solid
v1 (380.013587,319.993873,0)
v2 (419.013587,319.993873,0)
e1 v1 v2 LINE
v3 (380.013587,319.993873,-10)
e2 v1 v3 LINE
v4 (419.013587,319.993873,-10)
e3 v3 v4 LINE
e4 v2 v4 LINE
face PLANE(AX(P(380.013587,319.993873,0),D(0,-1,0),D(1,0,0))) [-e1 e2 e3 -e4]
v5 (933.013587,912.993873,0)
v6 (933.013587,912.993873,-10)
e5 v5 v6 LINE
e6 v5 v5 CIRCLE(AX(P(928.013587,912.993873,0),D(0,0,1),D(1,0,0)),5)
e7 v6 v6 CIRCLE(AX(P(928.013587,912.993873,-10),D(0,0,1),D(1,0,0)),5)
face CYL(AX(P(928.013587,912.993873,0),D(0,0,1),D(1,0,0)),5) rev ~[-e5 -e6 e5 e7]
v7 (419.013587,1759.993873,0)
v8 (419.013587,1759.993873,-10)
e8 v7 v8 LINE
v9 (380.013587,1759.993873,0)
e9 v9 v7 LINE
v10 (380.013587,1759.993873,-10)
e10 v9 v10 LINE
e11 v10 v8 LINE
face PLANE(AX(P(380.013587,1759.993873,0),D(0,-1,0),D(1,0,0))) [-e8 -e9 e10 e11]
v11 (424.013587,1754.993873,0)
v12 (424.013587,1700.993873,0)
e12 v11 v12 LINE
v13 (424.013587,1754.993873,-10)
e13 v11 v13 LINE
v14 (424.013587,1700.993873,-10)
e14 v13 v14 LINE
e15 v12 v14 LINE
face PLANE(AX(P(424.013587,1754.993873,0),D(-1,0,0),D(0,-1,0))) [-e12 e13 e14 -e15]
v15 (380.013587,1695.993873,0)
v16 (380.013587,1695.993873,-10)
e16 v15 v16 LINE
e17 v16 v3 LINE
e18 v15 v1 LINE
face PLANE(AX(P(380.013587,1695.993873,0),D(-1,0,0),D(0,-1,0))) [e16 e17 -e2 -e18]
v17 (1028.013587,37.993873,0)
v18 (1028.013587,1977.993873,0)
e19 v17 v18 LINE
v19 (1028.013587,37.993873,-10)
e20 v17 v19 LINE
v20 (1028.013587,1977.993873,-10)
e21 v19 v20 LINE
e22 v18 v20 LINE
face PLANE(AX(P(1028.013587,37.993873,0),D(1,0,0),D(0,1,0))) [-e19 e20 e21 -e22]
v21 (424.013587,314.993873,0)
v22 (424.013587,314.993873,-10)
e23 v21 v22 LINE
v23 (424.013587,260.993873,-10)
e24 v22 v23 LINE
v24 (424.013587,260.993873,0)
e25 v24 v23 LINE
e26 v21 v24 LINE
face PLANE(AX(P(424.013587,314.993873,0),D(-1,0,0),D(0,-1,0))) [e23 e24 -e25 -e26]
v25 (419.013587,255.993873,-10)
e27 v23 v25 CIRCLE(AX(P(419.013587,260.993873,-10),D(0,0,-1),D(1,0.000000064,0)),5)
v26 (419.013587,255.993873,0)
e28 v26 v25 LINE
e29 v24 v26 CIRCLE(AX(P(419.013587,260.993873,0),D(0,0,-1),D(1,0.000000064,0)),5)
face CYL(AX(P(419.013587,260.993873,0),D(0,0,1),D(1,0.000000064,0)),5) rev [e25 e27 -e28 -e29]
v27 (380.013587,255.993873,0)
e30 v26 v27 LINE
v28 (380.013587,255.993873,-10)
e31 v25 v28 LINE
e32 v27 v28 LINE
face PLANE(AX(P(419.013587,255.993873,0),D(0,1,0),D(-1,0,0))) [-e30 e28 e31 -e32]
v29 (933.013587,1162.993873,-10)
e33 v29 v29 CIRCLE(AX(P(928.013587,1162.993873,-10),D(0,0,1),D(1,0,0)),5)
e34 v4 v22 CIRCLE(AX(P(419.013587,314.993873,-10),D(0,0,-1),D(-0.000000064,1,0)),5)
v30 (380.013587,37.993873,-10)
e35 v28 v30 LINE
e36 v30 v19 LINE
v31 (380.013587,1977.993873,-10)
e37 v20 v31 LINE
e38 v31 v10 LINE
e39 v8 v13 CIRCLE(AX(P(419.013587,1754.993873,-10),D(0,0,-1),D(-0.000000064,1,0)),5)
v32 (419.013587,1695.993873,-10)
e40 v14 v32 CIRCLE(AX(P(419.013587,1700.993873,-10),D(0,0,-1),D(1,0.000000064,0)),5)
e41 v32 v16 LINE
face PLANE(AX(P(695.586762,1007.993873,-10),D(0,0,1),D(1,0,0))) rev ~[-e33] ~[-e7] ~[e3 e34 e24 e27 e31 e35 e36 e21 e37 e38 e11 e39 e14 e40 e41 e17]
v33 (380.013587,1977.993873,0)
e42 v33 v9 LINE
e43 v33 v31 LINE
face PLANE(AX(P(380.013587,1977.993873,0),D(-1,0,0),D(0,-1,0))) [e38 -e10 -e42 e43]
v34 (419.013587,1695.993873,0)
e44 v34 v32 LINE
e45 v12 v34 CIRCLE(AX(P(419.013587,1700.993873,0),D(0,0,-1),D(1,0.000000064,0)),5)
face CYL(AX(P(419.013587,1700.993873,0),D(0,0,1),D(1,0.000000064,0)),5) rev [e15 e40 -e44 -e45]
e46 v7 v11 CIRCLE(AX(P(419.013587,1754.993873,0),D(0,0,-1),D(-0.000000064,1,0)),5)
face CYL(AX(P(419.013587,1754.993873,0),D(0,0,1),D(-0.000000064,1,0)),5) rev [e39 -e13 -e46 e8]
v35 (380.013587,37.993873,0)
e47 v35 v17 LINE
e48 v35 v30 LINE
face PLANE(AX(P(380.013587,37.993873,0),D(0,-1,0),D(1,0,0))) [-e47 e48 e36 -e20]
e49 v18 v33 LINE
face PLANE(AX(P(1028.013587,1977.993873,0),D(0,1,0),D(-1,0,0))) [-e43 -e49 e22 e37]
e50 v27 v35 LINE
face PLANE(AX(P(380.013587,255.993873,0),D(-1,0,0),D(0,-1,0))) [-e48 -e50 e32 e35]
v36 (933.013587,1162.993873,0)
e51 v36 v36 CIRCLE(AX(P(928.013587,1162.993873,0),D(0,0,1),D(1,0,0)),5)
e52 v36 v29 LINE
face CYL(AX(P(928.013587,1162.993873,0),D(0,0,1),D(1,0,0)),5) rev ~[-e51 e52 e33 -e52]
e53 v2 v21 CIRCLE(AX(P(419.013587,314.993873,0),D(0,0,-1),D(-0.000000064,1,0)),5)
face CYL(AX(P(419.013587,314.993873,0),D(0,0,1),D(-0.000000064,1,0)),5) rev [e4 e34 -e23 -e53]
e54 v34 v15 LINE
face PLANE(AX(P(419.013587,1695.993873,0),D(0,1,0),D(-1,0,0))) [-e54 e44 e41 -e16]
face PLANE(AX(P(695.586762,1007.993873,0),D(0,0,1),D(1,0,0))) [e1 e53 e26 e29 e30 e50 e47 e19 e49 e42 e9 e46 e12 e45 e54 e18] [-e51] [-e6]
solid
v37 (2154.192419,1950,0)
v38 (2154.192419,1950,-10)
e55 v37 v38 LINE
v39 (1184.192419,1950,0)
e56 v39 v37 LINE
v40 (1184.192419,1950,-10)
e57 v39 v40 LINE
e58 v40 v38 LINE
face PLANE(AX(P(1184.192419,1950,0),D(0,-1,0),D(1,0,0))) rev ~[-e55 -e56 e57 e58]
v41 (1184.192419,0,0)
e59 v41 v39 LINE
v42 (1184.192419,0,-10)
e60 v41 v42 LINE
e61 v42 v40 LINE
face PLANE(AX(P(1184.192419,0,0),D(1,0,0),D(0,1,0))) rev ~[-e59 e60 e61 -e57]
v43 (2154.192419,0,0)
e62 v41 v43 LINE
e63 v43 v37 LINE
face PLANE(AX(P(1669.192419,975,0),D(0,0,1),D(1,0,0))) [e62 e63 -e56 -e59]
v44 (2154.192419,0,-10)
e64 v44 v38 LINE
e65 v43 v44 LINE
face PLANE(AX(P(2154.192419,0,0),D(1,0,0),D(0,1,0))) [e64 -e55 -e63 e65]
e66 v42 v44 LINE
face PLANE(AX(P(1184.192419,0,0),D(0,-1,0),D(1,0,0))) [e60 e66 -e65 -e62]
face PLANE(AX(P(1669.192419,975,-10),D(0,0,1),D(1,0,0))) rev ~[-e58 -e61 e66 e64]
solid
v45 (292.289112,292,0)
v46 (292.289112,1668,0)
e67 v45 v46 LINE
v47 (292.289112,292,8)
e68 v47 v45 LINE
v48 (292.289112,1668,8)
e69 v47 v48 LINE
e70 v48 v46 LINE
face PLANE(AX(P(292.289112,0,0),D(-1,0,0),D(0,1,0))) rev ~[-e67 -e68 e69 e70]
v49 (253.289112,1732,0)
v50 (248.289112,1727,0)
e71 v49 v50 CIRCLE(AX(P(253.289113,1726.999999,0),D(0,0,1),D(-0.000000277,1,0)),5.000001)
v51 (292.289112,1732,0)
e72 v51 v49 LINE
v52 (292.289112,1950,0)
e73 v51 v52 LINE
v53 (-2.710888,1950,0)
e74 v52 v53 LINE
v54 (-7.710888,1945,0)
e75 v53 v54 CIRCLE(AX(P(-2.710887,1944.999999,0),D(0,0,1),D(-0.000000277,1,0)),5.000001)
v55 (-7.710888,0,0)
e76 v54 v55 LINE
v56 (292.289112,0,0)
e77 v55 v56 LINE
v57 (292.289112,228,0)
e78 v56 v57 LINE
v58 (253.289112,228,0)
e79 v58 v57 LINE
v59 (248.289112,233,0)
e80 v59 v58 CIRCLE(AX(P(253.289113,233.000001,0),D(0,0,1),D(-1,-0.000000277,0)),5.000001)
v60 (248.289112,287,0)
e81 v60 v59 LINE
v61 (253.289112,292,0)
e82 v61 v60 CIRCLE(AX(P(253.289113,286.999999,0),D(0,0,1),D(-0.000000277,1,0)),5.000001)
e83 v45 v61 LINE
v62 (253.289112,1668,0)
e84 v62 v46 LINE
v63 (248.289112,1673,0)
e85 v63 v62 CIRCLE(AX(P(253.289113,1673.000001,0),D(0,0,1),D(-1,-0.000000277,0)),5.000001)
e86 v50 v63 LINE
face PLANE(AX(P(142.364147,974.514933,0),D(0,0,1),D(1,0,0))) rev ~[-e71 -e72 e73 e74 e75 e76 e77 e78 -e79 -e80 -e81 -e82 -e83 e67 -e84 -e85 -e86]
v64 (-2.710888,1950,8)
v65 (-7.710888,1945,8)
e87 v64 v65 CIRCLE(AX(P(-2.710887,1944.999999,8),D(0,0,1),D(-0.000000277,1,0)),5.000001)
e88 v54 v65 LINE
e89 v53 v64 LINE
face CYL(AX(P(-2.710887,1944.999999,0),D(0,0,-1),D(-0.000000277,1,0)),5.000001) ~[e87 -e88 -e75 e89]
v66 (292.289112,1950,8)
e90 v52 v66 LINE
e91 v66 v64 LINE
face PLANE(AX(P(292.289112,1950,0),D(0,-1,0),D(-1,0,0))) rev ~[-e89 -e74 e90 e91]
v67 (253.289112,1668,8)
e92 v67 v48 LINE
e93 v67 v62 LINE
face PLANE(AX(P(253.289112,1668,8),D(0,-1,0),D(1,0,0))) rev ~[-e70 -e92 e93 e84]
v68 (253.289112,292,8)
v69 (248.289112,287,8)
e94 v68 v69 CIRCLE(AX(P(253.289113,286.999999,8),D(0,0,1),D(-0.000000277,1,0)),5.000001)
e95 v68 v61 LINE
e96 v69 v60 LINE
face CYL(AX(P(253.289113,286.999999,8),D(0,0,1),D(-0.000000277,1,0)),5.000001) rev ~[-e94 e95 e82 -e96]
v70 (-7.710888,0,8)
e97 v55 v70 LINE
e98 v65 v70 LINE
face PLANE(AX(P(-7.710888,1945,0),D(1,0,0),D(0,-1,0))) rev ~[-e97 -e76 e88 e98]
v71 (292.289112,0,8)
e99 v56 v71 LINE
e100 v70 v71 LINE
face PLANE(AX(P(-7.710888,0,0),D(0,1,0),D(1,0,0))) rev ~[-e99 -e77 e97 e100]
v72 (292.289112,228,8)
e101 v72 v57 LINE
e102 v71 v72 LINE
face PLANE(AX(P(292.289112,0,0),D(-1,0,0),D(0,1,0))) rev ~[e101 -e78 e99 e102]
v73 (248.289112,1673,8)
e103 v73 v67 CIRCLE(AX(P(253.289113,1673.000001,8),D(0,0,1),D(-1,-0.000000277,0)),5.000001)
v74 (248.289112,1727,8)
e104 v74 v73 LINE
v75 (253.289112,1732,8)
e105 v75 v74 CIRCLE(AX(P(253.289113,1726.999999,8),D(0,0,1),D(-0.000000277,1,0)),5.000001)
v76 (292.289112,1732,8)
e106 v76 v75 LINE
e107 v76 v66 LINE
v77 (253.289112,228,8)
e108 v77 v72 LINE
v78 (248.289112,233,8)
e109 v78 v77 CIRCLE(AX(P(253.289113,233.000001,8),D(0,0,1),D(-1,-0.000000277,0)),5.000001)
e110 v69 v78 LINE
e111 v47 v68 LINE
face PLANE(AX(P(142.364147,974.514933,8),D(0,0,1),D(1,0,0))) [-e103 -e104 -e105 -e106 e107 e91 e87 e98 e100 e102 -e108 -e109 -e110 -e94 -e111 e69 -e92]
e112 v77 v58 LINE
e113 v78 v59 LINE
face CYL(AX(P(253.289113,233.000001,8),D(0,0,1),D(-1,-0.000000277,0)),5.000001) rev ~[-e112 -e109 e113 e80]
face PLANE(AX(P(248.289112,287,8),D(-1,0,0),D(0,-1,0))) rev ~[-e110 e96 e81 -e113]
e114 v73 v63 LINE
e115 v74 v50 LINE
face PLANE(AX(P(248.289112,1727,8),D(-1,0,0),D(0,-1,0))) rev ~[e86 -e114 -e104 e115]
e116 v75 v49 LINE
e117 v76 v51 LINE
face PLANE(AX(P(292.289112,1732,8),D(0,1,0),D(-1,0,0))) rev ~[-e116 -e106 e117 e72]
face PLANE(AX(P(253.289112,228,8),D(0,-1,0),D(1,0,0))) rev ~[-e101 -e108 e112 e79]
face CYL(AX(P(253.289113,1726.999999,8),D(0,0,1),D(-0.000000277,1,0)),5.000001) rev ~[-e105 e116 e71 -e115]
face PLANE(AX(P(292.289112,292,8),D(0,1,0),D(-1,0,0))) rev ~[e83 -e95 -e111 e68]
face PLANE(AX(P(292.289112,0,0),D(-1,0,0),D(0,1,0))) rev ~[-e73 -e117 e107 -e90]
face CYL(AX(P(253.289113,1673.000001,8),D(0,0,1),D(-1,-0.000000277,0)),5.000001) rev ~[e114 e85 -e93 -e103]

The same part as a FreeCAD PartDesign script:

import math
import FreeCAD as App
import Part
import Sketcher


def add_polygon(sketch, points):
    """Adds a closed chain of lines whose ends are joined by coincident constraints."""
    first, n = sketch.GeometryCount, len(points)
    for a, b in zip(points, points[1:] + points[:1]):
        sketch.addGeometry(Part.LineSegment(App.Vector(*a, 0), App.Vector(*b, 0)), False)
    for i in range(n):
        sketch.addConstraint(Sketcher.Constraint("Coincident", first + i, 2, first + (i + 1) % n, 1))

doc = App.newDocument("Part")
body = doc.addObject("PartDesign::Body", "Body")

# Sketch on XY plane
sketch1 = body.newObject("Sketcher::SketchObject", "Sketch")
sketch1.AttachmentSupport = (doc.getObject("XY_Plane"), [""])
sketch1.MapMode = "FlatFace"
sketch1.addGeometry(Part.LineSegment(App.Vector(-7.710888, 0, 0), App.Vector(292.289112, 0, 0)), False)
sketch1.addGeometry(Part.LineSegment(App.Vector(292.289112, 0, 0), App.Vector(292.289112, 1950, 0)), False)
sketch1.addGeometry(Part.LineSegment(App.Vector(292.289112, 1950, 0), App.Vector(-2.710888, 1950, 0)), False)
sketch1.addGeometry(Part.ArcOfCircle(Part.Circle(App.Vector(-2.710887, 1944.999999, 0), App.Vector(0, 0, 1), 5.000001), math.radians(90.000016), math.radians(179.999984)), False)
sketch1.addGeometry(Part.LineSegment(App.Vector(-7.710888, 1945, 0), App.Vector(-7.710888, 0, 0)), False)
sketch1.addConstraint(Sketcher.Constraint("Coincident", 0, 2, 1, 1))
sketch1.addConstraint(Sketcher.Constraint("Coincident", 1, 2, 2, 1))
sketch1.addConstraint(Sketcher.Constraint("Tangent", 2, 2, 3, 1))
sketch1.addConstraint(Sketcher.Constraint("Tangent", 3, 2, 4, 1))
sketch1.addConstraint(Sketcher.Constraint("Coincident", 4, 2, 0, 1))
sketch1.addConstraint(Sketcher.Constraint("Horizontal", 0))
sketch1.addConstraint(Sketcher.Constraint("Vertical", 1))
sketch1.addConstraint(Sketcher.Constraint("Horizontal", 2))
sketch1.addConstraint(Sketcher.Constraint("Vertical", 4))
sketch1.addConstraint(Sketcher.Constraint("PointOnObject", 0, 2, -1))
sketch1.addConstraint(Sketcher.Constraint("Radius", 3, 5.000001))
sketch1.addConstraint(Sketcher.Constraint("DistanceX", 0, 1, 0, 2, 300.0))
sketch1.addConstraint(Sketcher.Constraint("DistanceY", 1, 1, 1, 2, 1950.0))
sketch1.addConstraint(Sketcher.Constraint("DistanceX", -1, 1, 0, 2, 292.289112))
pad1 = body.newObject("PartDesign::Pad", "Pad")
pad1.Profile = sketch1
pad1.Length = 8

# Sketch on XY plane
sketch2 = body.newObject("Sketcher::SketchObject", "Sketch001")
sketch2.AttachmentSupport = (doc.getObject("XY_Plane"), [""])
sketch2.MapMode = "FlatFace"
sketch2.AttachmentOffset = App.Placement(App.Vector(0, 0, 8), App.Rotation())
sketch2.addGeometry(Part.LineSegment(App.Vector(292.289112, 1668, 0), App.Vector(292.289112, 1732, 0)), False)
sketch2.addGeometry(Part.LineSegment(App.Vector(292.289112, 1732, 0), App.Vector(253.289112, 1732, 0)), False)
sketch2.addGeometry(Part.ArcOfCircle(Part.Circle(App.Vector(253.289113, 1726.999999, 0), App.Vector(0, 0, 1), 5.000001), math.radians(90.000016), math.radians(179.999984)), False)
sketch2.addGeometry(Part.LineSegment(App.Vector(248.289112, 1727, 0), App.Vector(248.289112, 1673, 0)), False)
sketch2.addGeometry(Part.ArcOfCircle(Part.Circle(App.Vector(253.289113, 1673.000001, 0), App.Vector(0, 0, 1), 5.000001), math.radians(-179.999984), math.radians(-90.000016)), False)
sketch2.addGeometry(Part.LineSegment(App.Vector(253.289112, 1668, 0), App.Vector(292.289112, 1668, 0)), False)
sketch2.addGeometry(Part.LineSegment(App.Vector(292.289112, 228, 0), App.Vector(292.289112, 292, 0)), False)
sketch2.addGeometry(Part.LineSegment(App.Vector(292.289112, 292, 0), App.Vector(253.289112, 292, 0)), False)
sketch2.addGeometry(Part.ArcOfCircle(Part.Circle(App.Vector(253.289113, 286.999999, 0), App.Vector(0, 0, 1), 5.000001), math.radians(90.000016), math.radians(179.999984)), False)
sketch2.addGeometry(Part.LineSegment(App.Vector(248.289112, 287, 0), App.Vector(248.289112, 233, 0)), False)
sketch2.addGeometry(Part.ArcOfCircle(Part.Circle(App.Vector(253.289113, 233.000001, 0), App.Vector(0, 0, 1), 5.000001), math.radians(-179.999984), math.radians(-90.000016)), False)
sketch2.addGeometry(Part.LineSegment(App.Vector(253.289112, 228, 0), App.Vector(292.289112, 228, 0)), False)
sketch2.addConstraint(Sketcher.Constraint("Coincident", 0, 2, 1, 1))
sketch2.addConstraint(Sketcher.Constraint("Tangent", 1, 2, 2, 1))
sketch2.addConstraint(Sketcher.Constraint("Tangent", 2, 2, 3, 1))
sketch2.addConstraint(Sketcher.Constraint("Tangent", 3, 2, 4, 1))
sketch2.addConstraint(Sketcher.Constraint("Tangent", 4, 2, 5, 1))
sketch2.addConstraint(Sketcher.Constraint("Coincident", 5, 2, 0, 1))
sketch2.addConstraint(Sketcher.Constraint("Coincident", 6, 2, 7, 1))
sketch2.addConstraint(Sketcher.Constraint("Tangent", 7, 2, 8, 1))
sketch2.addConstraint(Sketcher.Constraint("Tangent", 8, 2, 9, 1))
sketch2.addConstraint(Sketcher.Constraint("Tangent", 9, 2, 10, 1))
sketch2.addConstraint(Sketcher.Constraint("Tangent", 10, 2, 11, 1))
sketch2.addConstraint(Sketcher.Constraint("Coincident", 11, 2, 6, 1))
sketch2.addConstraint(Sketcher.Constraint("Vertical", 0))
sketch2.addConstraint(Sketcher.Constraint("Horizontal", 1))
sketch2.addConstraint(Sketcher.Constraint("Vertical", 3))
sketch2.addConstraint(Sketcher.Constraint("Horizontal", 5))
sketch2.addConstraint(Sketcher.Constraint("Vertical", 6))
sketch2.addConstraint(Sketcher.Constraint("Horizontal", 7))
sketch2.addConstraint(Sketcher.Constraint("Vertical", 9))
sketch2.addConstraint(Sketcher.Constraint("Horizontal", 11))
sketch2.addConstraint(Sketcher.Constraint("Equal", 2, 4))
sketch2.addConstraint(Sketcher.Constraint("Equal", 4, 8))
sketch2.addConstraint(Sketcher.Constraint("Equal", 8, 10))
sketch2.addConstraint(Sketcher.Constraint("Vertical", 4, 3, 8, 3))
sketch2.addConstraint(Sketcher.Constraint("Vertical", 5, 2, 6, 2))
sketch2.addConstraint(Sketcher.Constraint("Equal", 0, 6))
sketch2.addConstraint(Sketcher.Constraint("Radius", 2, 5.000001))
sketch2.addConstraint(Sketcher.Constraint("DistanceX", 1, 2, 1, 1, 39.0))
sketch2.addConstraint(Sketcher.Constraint("DistanceY", 0, 1, 0, 2, 64.0))
sketch2.addConstraint(Sketcher.Constraint("DistanceY", -1, 1, 2, 3, 1726.999999))
sketch2.addConstraint(Sketcher.Constraint("DistanceY", -1, 1, 8, 3, 286.999999))
sketch2.addConstraint(Sketcher.Constraint("DistanceX", -1, 1, 0, 2, 292.289112))
pocket1 = body.newObject("PartDesign::Pocket", "Pocket")
pocket1.Profile = sketch2
pocket1.Length = 25
body2 = doc.addObject("PartDesign::Body", "Body001")

# Sketch on XY plane
sketch3 = body2.newObject("Sketcher::SketchObject", "Sketch002")
sketch3.AttachmentSupport = (doc.getObject("XY_Plane001"), [""])
sketch3.MapMode = "FlatFace"
sketch3.addGeometry(Part.LineSegment(App.Vector(1028.013587, 1977.993873, 0), App.Vector(380.013587, 1977.993873, 0)), False)
sketch3.addGeometry(Part.LineSegment(App.Vector(380.013587, 1977.993873, 0), App.Vector(380.013587, 1759.993873, 0)), False)
sketch3.addGeometry(Part.LineSegment(App.Vector(380.013587, 1759.993873, 0), App.Vector(419.013587, 1759.993873, 0)), False)
sketch3.addGeometry(Part.ArcOfCircle(Part.Circle(App.Vector(419.013587, 1754.993873, 0), App.Vector(0, 0, 1), 5), math.radians(-0.000004), math.radians(90.000004)), False)
sketch3.addGeometry(Part.LineSegment(App.Vector(424.013587, 1754.993873, 0), App.Vector(424.013587, 1700.993873, 0)), False)
sketch3.addGeometry(Part.ArcOfCircle(Part.Circle(App.Vector(419.013587, 1700.993873, 0), App.Vector(0, 0, 1), 5), math.radians(-90.000004), math.radians(0.000004)), False)
sketch3.addGeometry(Part.LineSegment(App.Vector(419.013587, 1695.993873, 0), App.Vector(380.013587, 1695.993873, 0)), False)
sketch3.addGeometry(Part.LineSegment(App.Vector(380.013587, 1695.993873, 0), App.Vector(380.013587, 319.993873, 0)), False)
sketch3.addGeometry(Part.LineSegment(App.Vector(380.013587, 319.993873, 0), App.Vector(419.013587, 319.993873, 0)), False)
sketch3.addGeometry(Part.ArcOfCircle(Part.Circle(App.Vector(419.013587, 314.993873, 0), App.Vector(0, 0, 1), 5), math.radians(-0.000004), math.radians(90.000004)), False)
sketch3.addGeometry(Part.LineSegment(App.Vector(424.013587, 314.993873, 0), App.Vector(424.013587, 260.993873, 0)), False)
sketch3.addGeometry(Part.ArcOfCircle(Part.Circle(App.Vector(419.013587, 260.993873, 0), App.Vector(0, 0, 1), 5), math.radians(-90.000004), math.radians(0.000004)), False)
sketch3.addGeometry(Part.LineSegment(App.Vector(419.013587, 255.993873, 0), App.Vector(380.013587, 255.993873, 0)), False)
sketch3.addGeometry(Part.LineSegment(App.Vector(380.013587, 255.993873, 0), App.Vector(380.013587, 37.993873, 0)), False)
sketch3.addGeometry(Part.LineSegment(App.Vector(380.013587, 37.993873, 0), App.Vector(1028.013587, 37.993873, 0)), False)
sketch3.addGeometry(Part.LineSegment(App.Vector(1028.013587, 37.993873, 0), App.Vector(1028.013587, 1977.993873, 0)), False)
sketch3.addConstraint(Sketcher.Constraint("Coincident", 0, 2, 1, 1))
sketch3.addConstraint(Sketcher.Constraint("Coincident", 1, 2, 2, 1))
sketch3.addConstraint(Sketcher.Constraint("Tangent", 2, 2, 3, 2))
sketch3.addConstraint(Sketcher.Constraint("Tangent", 3, 1, 4, 1))
sketch3.addConstraint(Sketcher.Constraint("Tangent", 4, 2, 5, 2))
sketch3.addConstraint(Sketcher.Constraint("Tangent", 5, 1, 6, 1))
sketch3.addConstraint(Sketcher.Constraint("Coincident", 6, 2, 7, 1))
sketch3.addConstraint(Sketcher.Constraint("Coincident", 7, 2, 8, 1))
sketch3.addConstraint(Sketcher.Constraint("Tangent", 8, 2, 9, 2))
sketch3.addConstraint(Sketcher.Constraint("Tangent", 9, 1, 10, 1))
sketch3.addConstraint(Sketcher.Constraint("Tangent", 10, 2, 11, 2))
sketch3.addConstraint(Sketcher.Constraint("Tangent", 11, 1, 12, 1))
sketch3.addConstraint(Sketcher.Constraint("Coincident", 12, 2, 13, 1))
sketch3.addConstraint(Sketcher.Constraint("Coincident", 13, 2, 14, 1))
sketch3.addConstraint(Sketcher.Constraint("Coincident", 14, 2, 15, 1))
sketch3.addConstraint(Sketcher.Constraint("Coincident", 15, 2, 0, 1))
sketch3.addConstraint(Sketcher.Constraint("Horizontal", 0))
sketch3.addConstraint(Sketcher.Constraint("Vertical", 1))
sketch3.addConstraint(Sketcher.Constraint("Horizontal", 2))
sketch3.addConstraint(Sketcher.Constraint("Vertical", 4))
sketch3.addConstraint(Sketcher.Constraint("Horizontal", 6))
sketch3.addConstraint(Sketcher.Constraint("Vertical", 7))
sketch3.addConstraint(Sketcher.Constraint("Horizontal", 8))
sketch3.addConstraint(Sketcher.Constraint("Vertical", 10))
sketch3.addConstraint(Sketcher.Constraint("Horizontal", 12))
sketch3.addConstraint(Sketcher.Constraint("Vertical", 13))
sketch3.addConstraint(Sketcher.Constraint("Horizontal", 14))
sketch3.addConstraint(Sketcher.Constraint("Vertical", 15))
sketch3.addConstraint(Sketcher.Constraint("Equal", 3, 5))
sketch3.addConstraint(Sketcher.Constraint("Equal", 5, 9))
sketch3.addConstraint(Sketcher.Constraint("Equal", 9, 11))
sketch3.addConstraint(Sketcher.Constraint("Vertical", 5, 3, 9, 3))
sketch3.addConstraint(Sketcher.Constraint("Vertical", 1, 2, 6, 2))
sketch3.addConstraint(Sketcher.Constraint("Vertical", 7, 2, 12, 2))
sketch3.addConstraint(Sketcher.Constraint("Equal", 4, 10))
sketch3.addConstraint(Sketcher.Constraint("Equal", 1, 13))
sketch3.addConstraint(Sketcher.Constraint("Radius", 3, 5.0))
sketch3.addConstraint(Sketcher.Constraint("DistanceX", 0, 2, 0, 1, 648.0))
sketch3.addConstraint(Sketcher.Constraint("DistanceX", 2, 1, 2, 2, 39.0))
sketch3.addConstraint(Sketcher.Constraint("DistanceY", 1, 2, 1, 1, 218.0))
sketch3.addConstraint(Sketcher.Constraint("DistanceY", 4, 2, 4, 1, 54.0))
sketch3.addConstraint(Sketcher.Constraint("DistanceY", 7, 2, 7, 1, 1376.0))
sketch3.addConstraint(Sketcher.Constraint("DistanceX", -1, 1, 3, 3, 419.013587))
sketch3.addConstraint(Sketcher.Constraint("DistanceY", -1, 1, 3, 3, 1754.993873))
pad2 = body2.newObject("PartDesign::Pad", "Pad001")
pad2.Profile = sketch3
pad2.Length = 10
pad2.Reversed = True

# Sketch on XY plane
sketch4 = body2.newObject("Sketcher::SketchObject", "Sketch003")
sketch4.AttachmentSupport = (doc.getObject("XY_Plane001"), [""])
sketch4.MapMode = "FlatFace"
sketch4.addGeometry(Part.Circle(App.Vector(928.013587, 1162.993873, 0), App.Vector(0, 0, 1), 5), False)
sketch4.addGeometry(Part.Circle(App.Vector(928.013587, 912.993873, 0), App.Vector(0, 0, 1), 5), False)
sketch4.addConstraint(Sketcher.Constraint("Equal", 0, 1))
sketch4.addConstraint(Sketcher.Constraint("Vertical", 0, 3, 1, 3))
sketch4.addConstraint(Sketcher.Constraint("Diameter", 0, 10.0))
sketch4.addConstraint(Sketcher.Constraint("DistanceY", 1, 3, 0, 3, 250.0))
sketch4.addConstraint(Sketcher.Constraint("DistanceX", -1, 1, 0, 3, 928.013587))
sketch4.addConstraint(Sketcher.Constraint("DistanceY", -1, 1, 0, 3, 1162.993873))
pocket2 = body2.newObject("PartDesign::Pocket", "Pocket001")
pocket2.Profile = sketch4
pocket2.Type = "ThroughAll"
body3 = doc.addObject("PartDesign::Body", "Body002")

# Sketch on XY plane
sketch5 = body3.newObject("Sketcher::SketchObject", "Sketch004")
sketch5.AttachmentSupport = (doc.getObject("XY_Plane002"), [""])
sketch5.MapMode = "FlatFace"
add_polygon(sketch5, [(1184.192419, 1950), (1184.192419, 0), (2154.192419, 0), (2154.192419, 1950)])  # lines 0-3
sketch5.addConstraint(Sketcher.Constraint("Vertical", 0))
sketch5.addConstraint(Sketcher.Constraint("Horizontal", 1))
sketch5.addConstraint(Sketcher.Constraint("Vertical", 2))
sketch5.addConstraint(Sketcher.Constraint("Horizontal", 3))
sketch5.addConstraint(Sketcher.Constraint("PointOnObject", 0, 2, -1))
sketch5.addConstraint(Sketcher.Constraint("DistanceX", 1, 1, 1, 2, 970.0))
sketch5.addConstraint(Sketcher.Constraint("DistanceY", 0, 2, 0, 1, 1950.0))
sketch5.addConstraint(Sketcher.Constraint("DistanceX", -1, 1, 0, 2, 1184.192419))
pad3 = body3.newObject("PartDesign::Pad", "Pad002")
pad3.Profile = sketch5
pad3.Length = 10
pad3.Reversed = True

doc.recompute()
